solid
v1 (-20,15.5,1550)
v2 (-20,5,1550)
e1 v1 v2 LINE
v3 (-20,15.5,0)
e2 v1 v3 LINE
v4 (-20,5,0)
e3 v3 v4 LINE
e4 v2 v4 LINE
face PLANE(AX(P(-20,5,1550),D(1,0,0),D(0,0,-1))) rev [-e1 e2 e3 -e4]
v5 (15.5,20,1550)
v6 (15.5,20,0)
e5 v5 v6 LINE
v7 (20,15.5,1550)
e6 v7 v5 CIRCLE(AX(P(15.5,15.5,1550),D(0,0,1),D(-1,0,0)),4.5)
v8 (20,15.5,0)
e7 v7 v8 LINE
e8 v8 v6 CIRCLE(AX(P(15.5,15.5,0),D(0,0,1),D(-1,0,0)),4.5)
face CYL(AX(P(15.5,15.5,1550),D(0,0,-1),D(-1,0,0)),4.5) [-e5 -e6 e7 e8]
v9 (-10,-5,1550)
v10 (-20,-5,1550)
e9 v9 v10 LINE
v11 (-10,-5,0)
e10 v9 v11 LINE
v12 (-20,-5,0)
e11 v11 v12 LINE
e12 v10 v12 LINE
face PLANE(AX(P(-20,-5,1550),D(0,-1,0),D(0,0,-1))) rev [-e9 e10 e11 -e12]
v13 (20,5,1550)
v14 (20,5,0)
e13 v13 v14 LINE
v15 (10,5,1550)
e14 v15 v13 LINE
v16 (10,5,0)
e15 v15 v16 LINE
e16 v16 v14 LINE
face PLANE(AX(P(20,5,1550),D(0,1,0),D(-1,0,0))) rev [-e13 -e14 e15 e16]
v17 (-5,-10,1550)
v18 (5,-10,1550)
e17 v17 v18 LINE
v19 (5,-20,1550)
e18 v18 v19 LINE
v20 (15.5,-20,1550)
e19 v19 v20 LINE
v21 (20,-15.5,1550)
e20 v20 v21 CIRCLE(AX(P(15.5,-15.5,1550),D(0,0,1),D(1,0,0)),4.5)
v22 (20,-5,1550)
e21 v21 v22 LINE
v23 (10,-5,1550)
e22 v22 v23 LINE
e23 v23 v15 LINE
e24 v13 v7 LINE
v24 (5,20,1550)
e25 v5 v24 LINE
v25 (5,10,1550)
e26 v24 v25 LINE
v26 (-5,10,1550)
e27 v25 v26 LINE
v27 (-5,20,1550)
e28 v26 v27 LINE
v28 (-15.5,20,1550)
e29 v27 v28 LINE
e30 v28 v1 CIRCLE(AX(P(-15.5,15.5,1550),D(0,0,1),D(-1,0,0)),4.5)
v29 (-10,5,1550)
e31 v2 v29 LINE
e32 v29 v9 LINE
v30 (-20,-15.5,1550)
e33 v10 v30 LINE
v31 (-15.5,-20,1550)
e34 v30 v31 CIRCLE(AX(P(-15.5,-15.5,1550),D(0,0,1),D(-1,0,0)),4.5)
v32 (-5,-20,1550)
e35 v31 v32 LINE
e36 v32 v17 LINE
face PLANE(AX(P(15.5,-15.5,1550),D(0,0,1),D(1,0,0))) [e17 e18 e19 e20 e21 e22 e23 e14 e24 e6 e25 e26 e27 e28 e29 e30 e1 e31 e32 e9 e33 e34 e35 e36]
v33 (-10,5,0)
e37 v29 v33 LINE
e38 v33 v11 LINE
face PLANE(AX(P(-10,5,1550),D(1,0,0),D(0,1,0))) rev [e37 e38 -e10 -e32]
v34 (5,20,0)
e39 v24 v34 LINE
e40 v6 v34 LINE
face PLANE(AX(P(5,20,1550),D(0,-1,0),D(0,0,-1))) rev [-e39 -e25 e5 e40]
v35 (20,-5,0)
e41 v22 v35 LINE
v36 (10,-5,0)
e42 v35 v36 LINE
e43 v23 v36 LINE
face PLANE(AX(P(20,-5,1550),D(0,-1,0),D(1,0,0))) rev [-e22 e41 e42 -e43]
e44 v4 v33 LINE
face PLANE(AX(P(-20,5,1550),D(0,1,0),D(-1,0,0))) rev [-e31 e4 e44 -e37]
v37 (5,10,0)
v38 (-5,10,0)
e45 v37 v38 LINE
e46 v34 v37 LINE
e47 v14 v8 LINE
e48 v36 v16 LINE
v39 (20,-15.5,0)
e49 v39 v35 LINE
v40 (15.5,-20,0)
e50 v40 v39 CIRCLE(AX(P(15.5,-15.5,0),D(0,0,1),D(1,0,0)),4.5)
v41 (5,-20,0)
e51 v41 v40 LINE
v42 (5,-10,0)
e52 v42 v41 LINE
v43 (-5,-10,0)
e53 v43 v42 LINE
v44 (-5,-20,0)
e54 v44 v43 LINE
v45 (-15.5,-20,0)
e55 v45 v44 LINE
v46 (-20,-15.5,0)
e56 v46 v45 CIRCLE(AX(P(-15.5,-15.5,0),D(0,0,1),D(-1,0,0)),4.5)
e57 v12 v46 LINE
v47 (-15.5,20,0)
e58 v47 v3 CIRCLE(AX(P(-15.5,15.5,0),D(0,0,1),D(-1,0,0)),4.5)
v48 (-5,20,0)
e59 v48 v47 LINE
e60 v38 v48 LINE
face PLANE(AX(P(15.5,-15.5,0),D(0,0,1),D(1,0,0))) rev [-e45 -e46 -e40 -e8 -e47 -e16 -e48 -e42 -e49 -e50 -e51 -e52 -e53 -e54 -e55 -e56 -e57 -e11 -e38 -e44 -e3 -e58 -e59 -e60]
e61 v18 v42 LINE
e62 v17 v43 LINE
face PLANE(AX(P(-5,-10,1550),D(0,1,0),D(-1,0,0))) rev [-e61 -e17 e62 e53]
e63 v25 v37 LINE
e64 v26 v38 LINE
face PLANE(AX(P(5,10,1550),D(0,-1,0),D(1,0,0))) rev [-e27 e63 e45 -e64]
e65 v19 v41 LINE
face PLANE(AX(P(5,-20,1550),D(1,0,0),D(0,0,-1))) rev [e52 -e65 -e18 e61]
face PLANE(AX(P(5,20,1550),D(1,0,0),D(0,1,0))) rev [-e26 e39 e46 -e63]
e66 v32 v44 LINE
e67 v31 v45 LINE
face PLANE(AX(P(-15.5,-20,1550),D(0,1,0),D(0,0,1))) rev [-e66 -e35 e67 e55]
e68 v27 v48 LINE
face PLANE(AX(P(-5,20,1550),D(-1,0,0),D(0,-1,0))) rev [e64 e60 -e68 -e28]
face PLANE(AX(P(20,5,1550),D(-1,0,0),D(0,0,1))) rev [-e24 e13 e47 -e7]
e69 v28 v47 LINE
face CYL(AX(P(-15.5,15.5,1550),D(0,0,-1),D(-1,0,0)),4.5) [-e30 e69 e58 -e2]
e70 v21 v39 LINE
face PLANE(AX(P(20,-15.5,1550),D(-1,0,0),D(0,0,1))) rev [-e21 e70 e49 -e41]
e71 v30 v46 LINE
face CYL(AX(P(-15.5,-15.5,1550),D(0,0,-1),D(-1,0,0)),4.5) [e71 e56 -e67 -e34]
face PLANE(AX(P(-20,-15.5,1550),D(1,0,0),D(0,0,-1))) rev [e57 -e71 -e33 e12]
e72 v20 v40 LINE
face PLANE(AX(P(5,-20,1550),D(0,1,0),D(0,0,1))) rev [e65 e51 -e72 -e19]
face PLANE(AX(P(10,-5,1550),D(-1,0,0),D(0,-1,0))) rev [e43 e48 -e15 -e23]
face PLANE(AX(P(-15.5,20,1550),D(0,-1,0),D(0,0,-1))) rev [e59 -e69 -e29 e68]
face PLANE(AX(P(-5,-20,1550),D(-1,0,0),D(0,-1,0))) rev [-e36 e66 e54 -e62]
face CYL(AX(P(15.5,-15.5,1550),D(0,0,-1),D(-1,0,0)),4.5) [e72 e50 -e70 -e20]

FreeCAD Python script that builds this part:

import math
import FreeCAD as App
import Part
import Sketcher

V = App.Vector

doc = App.newDocument("Part")
body = doc.addObject("PartDesign::Body", "Body")

sketch1 = body.newObject("Sketcher::SketchObject", "Sketch")
sketch1.AttachmentSupport = (doc.getObject("XY_Plane"), [""])
sketch1.MapMode = "FlatFace"
sketch1.addGeometry(Part.LineSegment(V(-15.5, -20, 0), V(-5, -20, 0)), False)
sketch1.addGeometry(Part.LineSegment(V(-5, -20, 0), V(-5, -10, 0)), False)
sketch1.addGeometry(Part.LineSegment(V(-5, -10, 0), V(5, -10, 0)), False)
sketch1.addGeometry(Part.LineSegment(V(5, -10, 0), V(5, -20, 0)), False)
sketch1.addGeometry(Part.LineSegment(V(5, -20, 0), V(15.5, -20, 0)), False)
sketch1.addGeometry(Part.ArcOfCircle(Part.Circle(V(15.5, -15.5, 0), V(0, 0, 1), 4.5), math.radians(-90), math.radians(0)), False)
sketch1.addGeometry(Part.LineSegment(V(20, -15.5, 0), V(20, -5, 0)), False)
sketch1.addGeometry(Part.LineSegment(V(20, -5, 0), V(10, -5, 0)), False)
sketch1.addGeometry(Part.LineSegment(V(10, -5, 0), V(10, 5, 0)), False)
sketch1.addGeometry(Part.LineSegment(V(10, 5, 0), V(20, 5, 0)), False)
sketch1.addGeometry(Part.LineSegment(V(20, 5, 0), V(20, 15.5, 0)), False)
sketch1.addGeometry(Part.ArcOfCircle(Part.Circle(V(15.5, 15.5, 0), V(0, 0, 1), 4.5), math.radians(0), math.radians(90)), False)
sketch1.addGeometry(Part.LineSegment(V(15.5, 20, 0), V(5, 20, 0)), False)
sketch1.addGeometry(Part.LineSegment(V(5, 20, 0), V(5, 10, 0)), False)
sketch1.addGeometry(Part.LineSegment(V(5, 10, 0), V(-5, 10, 0)), False)
sketch1.addGeometry(Part.LineSegment(V(-5, 10, 0), V(-5, 20, 0)), False)
sketch1.addGeometry(Part.LineSegment(V(-5, 20, 0), V(-15.5, 20, 0)), False)
sketch1.addGeometry(Part.ArcOfCircle(Part.Circle(V(-15.5, 15.5, 0), V(0, 0, 1), 4.5), math.radians(90), math.radians(180)), False)
sketch1.addGeometry(Part.LineSegment(V(-20, 15.5, 0), V(-20, 5, 0)), False)
sketch1.addGeometry(Part.LineSegment(V(-20, 5, 0), V(-10, 5, 0)), False)
sketch1.addGeometry(Part.LineSegment(V(-10, 5, 0), V(-10, -5, 0)), False)
sketch1.addGeometry(Part.LineSegment(V(-10, -5, 0), V(-20, -5, 0)), False)
sketch1.addGeometry(Part.LineSegment(V(-20, -5, 0), V(-20, -15.5, 0)), False)
sketch1.addGeometry(Part.ArcOfCircle(Part.Circle(V(-15.5, -15.5, 0), V(0, 0, 1), 4.5), math.radians(-180), math.radians(-90)), False)
sketch1.addConstraint(Sketcher.Constraint("Coincident", 0, 2, 1, 1))
sketch1.addConstraint(Sketcher.Constraint("Coincident", 1, 2, 2, 1))
sketch1.addConstraint(Sketcher.Constraint("Coincident", 2, 2, 3, 1))
sketch1.addConstraint(Sketcher.Constraint("Coincident", 3, 2, 4, 1))
sketch1.addConstraint(Sketcher.Constraint("Tangent", 4, 2, 5, 1))
sketch1.addConstraint(Sketcher.Constraint("Tangent", 5, 2, 6, 1))
sketch1.addConstraint(Sketcher.Constraint("Coincident", 6, 2, 7, 1))
sketch1.addConstraint(Sketcher.Constraint("Coincident", 7, 2, 8, 1))
sketch1.addConstraint(Sketcher.Constraint("Coincident", 8, 2, 9, 1))
sketch1.addConstraint(Sketcher.Constraint("Coincident", 9, 2, 10, 1))
sketch1.addConstraint(Sketcher.Constraint("Tangent", 10, 2, 11, 1))
sketch1.addConstraint(Sketcher.Constraint("Tangent", 11, 2, 12, 1))
sketch1.addConstraint(Sketcher.Constraint("Coincident", 12, 2, 13, 1))
sketch1.addConstraint(Sketcher.Constraint("Coincident", 13, 2, 14, 1))
sketch1.addConstraint(Sketcher.Constraint("Coincident", 14, 2, 15, 1))
sketch1.addConstraint(Sketcher.Constraint("Coincident", 15, 2, 16, 1))
sketch1.addConstraint(Sketcher.Constraint("Tangent", 16, 2, 17, 1))
sketch1.addConstraint(Sketcher.Constraint("Tangent", 17, 2, 18, 1))
sketch1.addConstraint(Sketcher.Constraint("Coincident", 18, 2, 19, 1))
sketch1.addConstraint(Sketcher.Constraint("Coincident", 19, 2, 20, 1))
sketch1.addConstraint(Sketcher.Constraint("Coincident", 20, 2, 21, 1))
sketch1.addConstraint(Sketcher.Constraint("Coincident", 21, 2, 22, 1))
sketch1.addConstraint(Sketcher.Constraint("Tangent", 22, 2, 23, 1))
sketch1.addConstraint(Sketcher.Constraint("Tangent", 23, 2, 0, 1))
sketch1.addConstraint(Sketcher.Constraint("Horizontal", 0))
sketch1.addConstraint(Sketcher.Constraint("Vertical", 1))
sketch1.addConstraint(Sketcher.Constraint("Horizontal", 2))
sketch1.addConstraint(Sketcher.Constraint("Vertical", 3))
sketch1.addConstraint(Sketcher.Constraint("Horizontal", 4))
sketch1.addConstraint(Sketcher.Constraint("Vertical", 6))
sketch1.addConstraint(Sketcher.Constraint("Horizontal", 7))
sketch1.addConstraint(Sketcher.Constraint("Vertical", 8))
sketch1.addConstraint(Sketcher.Constraint("Horizontal", 9))
sketch1.addConstraint(Sketcher.Constraint("Vertical", 10))
sketch1.addConstraint(Sketcher.Constraint("Horizontal", 12))
sketch1.addConstraint(Sketcher.Constraint("Vertical", 13))
sketch1.addConstraint(Sketcher.Constraint("Horizontal", 14))
sketch1.addConstraint(Sketcher.Constraint("Vertical", 15))
sketch1.addConstraint(Sketcher.Constraint("Horizontal", 16))
sketch1.addConstraint(Sketcher.Constraint("Vertical", 18))
sketch1.addConstraint(Sketcher.Constraint("Horizontal", 19))
sketch1.addConstraint(Sketcher.Constraint("Vertical", 20))
sketch1.addConstraint(Sketcher.Constraint("Horizontal", 21))
sketch1.addConstraint(Sketcher.Constraint("Vertical", 22))
sketch1.addConstraint(Sketcher.Constraint("Equal", 5, 11))
sketch1.addConstraint(Sketcher.Constraint("Equal", 11, 17))
sketch1.addConstraint(Sketcher.Constraint("Equal", 17, 23))
sketch1.addConstraint(Sketcher.Constraint("Symmetric", 5, 3, 17, 3, -1, 1))
sketch1.addConstraint(Sketcher.Constraint("Symmetric", 11, 3, 23, 3, -1, 1))
sketch1.addConstraint(Sketcher.Constraint("Symmetric", 1, 2, 13, 2, -1, 1))
sketch1.addConstraint(Sketcher.Constraint("Symmetric", 7, 2, 19, 2, -1, 1))
sketch1.addConstraint(Sketcher.Constraint("Symmetric", 11, 3, 17, 3, -2))
sketch1.addConstraint(Sketcher.Constraint("Horizontal", 9, 2, 18, 2))
sketch1.addConstraint(Sketcher.Constraint("Horizontal", 7, 2, 20, 2))
sketch1.addConstraint(Sketcher.Constraint("Vertical", 3, 2, 12, 2))
sketch1.addConstraint(Sketcher.Constraint("Vertical", 1, 2, 14, 2))
sketch1.addConstraint(Sketcher.Constraint("Equal", 2, 7))
sketch1.addConstraint(Sketcher.Constraint("Equal", 21, 1))
sketch1.addConstraint(Sketcher.Constraint("Equal", 16, 6))
sketch1.addConstraint(Sketcher.Constraint("Equal", 3, 8))
sketch1.addConstraint(Sketcher.Constraint("Radius", 5, 4.5))
sketch1.addConstraint(Sketcher.Constraint("DistanceX", 2, 1, 2, 2, 10.0))
sketch1.addConstraint(Sketcher.Constraint("DistanceX", 0, 1, 0, 2, 10.5))
pad1 = body.newObject("PartDesign::Pad", "Pad")
pad1.Profile = sketch1
pad1.Length = 1550

doc.recompute()
